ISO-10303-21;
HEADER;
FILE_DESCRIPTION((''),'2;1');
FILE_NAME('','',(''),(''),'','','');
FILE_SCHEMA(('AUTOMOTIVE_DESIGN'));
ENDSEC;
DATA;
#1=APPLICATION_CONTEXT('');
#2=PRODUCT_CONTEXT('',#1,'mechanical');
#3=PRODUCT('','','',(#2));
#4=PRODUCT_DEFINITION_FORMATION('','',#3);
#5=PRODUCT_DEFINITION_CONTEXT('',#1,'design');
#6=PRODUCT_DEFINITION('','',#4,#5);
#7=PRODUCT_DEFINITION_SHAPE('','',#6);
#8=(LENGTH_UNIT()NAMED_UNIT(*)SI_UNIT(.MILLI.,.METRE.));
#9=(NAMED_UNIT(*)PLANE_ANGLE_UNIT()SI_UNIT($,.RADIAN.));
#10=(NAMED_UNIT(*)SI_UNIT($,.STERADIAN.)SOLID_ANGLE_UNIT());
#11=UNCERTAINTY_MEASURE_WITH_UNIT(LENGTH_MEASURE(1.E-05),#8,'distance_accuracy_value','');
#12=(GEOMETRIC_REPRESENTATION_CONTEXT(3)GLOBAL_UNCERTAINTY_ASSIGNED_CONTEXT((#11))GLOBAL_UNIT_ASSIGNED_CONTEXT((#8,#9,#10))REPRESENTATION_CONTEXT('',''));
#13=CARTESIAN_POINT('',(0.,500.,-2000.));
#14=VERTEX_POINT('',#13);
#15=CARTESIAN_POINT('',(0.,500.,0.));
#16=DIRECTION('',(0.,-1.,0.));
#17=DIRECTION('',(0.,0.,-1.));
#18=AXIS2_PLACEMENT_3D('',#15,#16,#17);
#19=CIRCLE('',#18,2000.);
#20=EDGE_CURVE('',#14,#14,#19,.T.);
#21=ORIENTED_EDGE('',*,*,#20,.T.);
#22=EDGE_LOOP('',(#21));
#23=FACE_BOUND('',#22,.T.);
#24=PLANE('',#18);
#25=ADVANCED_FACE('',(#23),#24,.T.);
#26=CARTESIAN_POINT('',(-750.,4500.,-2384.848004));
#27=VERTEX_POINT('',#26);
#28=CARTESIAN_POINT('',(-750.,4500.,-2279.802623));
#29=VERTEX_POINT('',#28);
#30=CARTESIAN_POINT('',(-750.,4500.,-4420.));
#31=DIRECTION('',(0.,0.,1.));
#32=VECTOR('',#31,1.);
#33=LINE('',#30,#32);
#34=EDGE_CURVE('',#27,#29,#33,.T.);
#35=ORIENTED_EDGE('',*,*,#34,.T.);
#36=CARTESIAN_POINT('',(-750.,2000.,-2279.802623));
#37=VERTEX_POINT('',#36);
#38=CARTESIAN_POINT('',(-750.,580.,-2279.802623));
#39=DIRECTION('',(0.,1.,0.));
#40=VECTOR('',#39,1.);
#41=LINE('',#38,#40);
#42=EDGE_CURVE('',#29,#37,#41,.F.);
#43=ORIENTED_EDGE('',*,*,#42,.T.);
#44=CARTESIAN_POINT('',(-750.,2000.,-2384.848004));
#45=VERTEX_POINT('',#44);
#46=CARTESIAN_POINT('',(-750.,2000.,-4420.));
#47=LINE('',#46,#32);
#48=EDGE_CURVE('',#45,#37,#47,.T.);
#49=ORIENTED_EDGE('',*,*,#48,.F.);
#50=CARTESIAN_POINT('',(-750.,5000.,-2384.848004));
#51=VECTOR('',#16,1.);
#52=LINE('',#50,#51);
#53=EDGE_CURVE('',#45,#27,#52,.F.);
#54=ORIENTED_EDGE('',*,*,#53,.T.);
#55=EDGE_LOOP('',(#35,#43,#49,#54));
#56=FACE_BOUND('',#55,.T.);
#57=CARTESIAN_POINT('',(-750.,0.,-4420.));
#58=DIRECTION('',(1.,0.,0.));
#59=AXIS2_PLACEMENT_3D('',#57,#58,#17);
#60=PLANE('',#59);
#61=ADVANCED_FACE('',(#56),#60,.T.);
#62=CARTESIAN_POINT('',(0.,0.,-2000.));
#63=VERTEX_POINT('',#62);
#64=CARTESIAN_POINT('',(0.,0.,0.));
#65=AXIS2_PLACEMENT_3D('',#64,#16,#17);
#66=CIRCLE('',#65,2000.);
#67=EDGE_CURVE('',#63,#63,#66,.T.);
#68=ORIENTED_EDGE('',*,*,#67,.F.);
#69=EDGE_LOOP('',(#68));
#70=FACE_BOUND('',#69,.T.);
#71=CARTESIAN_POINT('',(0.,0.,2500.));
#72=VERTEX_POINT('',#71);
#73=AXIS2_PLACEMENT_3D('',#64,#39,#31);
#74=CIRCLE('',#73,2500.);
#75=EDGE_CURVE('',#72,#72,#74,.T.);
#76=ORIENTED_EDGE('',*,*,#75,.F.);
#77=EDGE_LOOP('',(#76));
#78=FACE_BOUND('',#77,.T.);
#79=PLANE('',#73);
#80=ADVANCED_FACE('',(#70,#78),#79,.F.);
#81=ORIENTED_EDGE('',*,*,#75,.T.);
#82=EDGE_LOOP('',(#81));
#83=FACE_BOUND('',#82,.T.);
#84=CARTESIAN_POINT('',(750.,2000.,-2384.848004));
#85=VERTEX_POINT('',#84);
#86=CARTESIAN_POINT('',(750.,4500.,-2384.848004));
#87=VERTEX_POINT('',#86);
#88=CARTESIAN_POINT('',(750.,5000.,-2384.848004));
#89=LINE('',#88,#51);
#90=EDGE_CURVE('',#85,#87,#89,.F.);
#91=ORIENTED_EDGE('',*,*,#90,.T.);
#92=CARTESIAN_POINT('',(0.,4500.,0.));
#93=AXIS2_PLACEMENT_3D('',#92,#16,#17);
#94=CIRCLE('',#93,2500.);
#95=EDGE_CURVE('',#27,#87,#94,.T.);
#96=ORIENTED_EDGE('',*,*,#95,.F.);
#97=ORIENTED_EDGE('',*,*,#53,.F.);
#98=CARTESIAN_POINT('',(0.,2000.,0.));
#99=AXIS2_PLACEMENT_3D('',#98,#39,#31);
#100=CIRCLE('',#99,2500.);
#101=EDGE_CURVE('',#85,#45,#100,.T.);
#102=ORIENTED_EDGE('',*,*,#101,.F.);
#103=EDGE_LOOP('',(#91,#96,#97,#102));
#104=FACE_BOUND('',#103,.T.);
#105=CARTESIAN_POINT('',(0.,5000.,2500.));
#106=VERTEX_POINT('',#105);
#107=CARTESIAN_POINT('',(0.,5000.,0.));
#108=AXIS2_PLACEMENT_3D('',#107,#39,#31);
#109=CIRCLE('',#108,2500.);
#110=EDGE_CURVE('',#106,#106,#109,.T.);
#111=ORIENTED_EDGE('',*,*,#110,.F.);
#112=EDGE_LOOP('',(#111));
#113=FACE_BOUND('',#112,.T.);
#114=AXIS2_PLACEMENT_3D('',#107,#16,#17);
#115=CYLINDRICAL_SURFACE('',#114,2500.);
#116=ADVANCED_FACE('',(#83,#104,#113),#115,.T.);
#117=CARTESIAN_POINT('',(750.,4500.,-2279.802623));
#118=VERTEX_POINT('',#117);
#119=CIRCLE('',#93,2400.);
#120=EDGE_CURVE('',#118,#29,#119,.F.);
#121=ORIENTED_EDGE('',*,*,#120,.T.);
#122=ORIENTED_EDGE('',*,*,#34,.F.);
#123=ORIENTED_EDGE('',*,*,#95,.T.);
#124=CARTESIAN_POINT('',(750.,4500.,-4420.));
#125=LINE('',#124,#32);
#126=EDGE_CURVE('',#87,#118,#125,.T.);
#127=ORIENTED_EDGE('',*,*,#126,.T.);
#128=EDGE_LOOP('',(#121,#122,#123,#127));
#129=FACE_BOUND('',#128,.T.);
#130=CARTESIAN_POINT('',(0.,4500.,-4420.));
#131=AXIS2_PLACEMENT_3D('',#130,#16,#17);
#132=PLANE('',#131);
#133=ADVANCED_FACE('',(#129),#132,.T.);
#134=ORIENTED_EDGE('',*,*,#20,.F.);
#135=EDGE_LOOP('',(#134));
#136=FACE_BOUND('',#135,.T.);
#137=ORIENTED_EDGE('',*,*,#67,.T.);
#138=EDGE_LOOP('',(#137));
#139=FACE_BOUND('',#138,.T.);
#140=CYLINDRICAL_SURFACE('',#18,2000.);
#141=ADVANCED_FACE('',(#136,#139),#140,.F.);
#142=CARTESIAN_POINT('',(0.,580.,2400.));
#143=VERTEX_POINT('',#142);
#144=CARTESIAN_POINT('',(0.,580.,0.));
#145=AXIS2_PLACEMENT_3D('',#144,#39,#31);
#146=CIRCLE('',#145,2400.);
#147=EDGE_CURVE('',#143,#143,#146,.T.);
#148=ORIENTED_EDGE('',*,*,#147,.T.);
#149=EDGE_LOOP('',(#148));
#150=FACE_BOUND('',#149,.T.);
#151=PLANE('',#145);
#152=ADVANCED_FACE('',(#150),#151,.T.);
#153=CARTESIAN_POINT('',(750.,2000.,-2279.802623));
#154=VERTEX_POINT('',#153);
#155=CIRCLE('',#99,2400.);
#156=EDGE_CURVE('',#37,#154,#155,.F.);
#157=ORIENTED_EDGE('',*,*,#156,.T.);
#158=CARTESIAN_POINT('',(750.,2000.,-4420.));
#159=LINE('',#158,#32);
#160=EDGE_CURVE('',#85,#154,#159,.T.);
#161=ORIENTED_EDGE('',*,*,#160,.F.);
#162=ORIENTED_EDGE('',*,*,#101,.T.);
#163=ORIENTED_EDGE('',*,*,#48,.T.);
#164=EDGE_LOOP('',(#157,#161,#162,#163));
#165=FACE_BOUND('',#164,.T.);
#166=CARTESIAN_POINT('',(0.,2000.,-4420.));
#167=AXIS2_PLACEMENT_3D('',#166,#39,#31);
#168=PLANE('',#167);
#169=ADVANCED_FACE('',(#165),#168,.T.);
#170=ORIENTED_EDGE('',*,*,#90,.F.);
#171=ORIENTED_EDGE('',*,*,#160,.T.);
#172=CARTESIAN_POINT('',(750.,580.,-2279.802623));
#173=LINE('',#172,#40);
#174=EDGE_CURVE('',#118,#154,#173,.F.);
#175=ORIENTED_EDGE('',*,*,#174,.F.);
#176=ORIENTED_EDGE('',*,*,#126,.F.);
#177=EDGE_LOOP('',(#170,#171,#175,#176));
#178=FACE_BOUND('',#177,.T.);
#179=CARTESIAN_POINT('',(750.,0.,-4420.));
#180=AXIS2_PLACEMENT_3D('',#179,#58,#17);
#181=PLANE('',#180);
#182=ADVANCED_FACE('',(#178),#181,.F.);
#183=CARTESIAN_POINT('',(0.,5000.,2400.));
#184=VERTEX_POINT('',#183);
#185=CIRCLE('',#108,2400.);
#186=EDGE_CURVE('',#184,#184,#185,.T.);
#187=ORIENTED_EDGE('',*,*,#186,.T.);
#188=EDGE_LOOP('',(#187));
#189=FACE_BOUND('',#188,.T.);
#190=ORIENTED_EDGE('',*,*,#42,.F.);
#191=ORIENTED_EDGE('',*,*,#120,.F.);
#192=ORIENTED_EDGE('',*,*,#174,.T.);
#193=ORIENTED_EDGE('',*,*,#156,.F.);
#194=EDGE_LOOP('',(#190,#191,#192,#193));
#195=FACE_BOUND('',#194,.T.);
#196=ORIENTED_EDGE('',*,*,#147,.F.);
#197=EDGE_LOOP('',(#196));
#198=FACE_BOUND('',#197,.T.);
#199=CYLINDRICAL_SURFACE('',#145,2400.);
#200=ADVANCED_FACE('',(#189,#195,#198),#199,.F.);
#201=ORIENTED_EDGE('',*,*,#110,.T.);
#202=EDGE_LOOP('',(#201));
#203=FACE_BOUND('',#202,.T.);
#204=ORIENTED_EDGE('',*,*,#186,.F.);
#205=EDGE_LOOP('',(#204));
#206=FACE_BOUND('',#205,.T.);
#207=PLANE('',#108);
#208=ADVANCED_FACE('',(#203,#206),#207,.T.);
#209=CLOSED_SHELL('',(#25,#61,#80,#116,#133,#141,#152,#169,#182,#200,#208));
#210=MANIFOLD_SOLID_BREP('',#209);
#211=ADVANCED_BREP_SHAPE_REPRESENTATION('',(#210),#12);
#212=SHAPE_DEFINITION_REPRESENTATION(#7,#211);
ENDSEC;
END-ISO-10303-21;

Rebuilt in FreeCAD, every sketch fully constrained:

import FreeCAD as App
import Part
import Sketcher
from FreeCAD import Vector
Q = App.Units.Quantity

doc = App.newDocument("Part")
body = doc.addObject("PartDesign::Body", "Body")

sketch1 = body.newObject("Sketcher::SketchObject", "Sketch")
sketch1.AttachmentSupport = (doc.getObject("XZ_Plane"), [""])
sketch1.MapMode = "FlatFace"
sketch1.addGeometry(Part.Circle(Vector(0, 0, 0), Vector(0, 0, 1), 2500), False)
sketch1.addConstraint([
    Sketcher.Constraint("Coincident", 0, 3, -1, 1),
    Sketcher.Constraint("Diameter", 0, Q("5000 mm")),
])
pad1 = body.newObject("PartDesign::Pad", "Pad")
pad1.Profile = sketch1
pad1.Length = 5000
pad1.Reversed = True

sketch2 = body.newObject("Sketcher::SketchObject", "Sketch001")
sketch2.AttachmentSupport = (doc.getObject("XZ_Plane"), [""])
sketch2.MapMode = "FlatFace"
sketch2.addGeometry(Part.Circle(Vector(0, 0, 0), Vector(0, 0, 1), 2000), False)
sketch2.addConstraint([
    Sketcher.Constraint("Coincident", 0, 3, -1, 1),
    Sketcher.Constraint("Diameter", 0, Q("4000 mm")),
])
pocket1 = body.newObject("PartDesign::Pocket", "Pocket")
pocket1.Profile = sketch2
pocket1.Length = 500

sketch3 = body.newObject("Sketcher::SketchObject", "Sketch002")
sketch3.AttachmentSupport = (doc.getObject("XZ_Plane"), [""])
sketch3.MapMode = "FlatFace"
sketch3.AttachmentOffset = App.Placement(Vector(0, 0, -5000), App.Rotation())
sketch3.addGeometry(Part.Circle(Vector(0, 0, 0), Vector(0, 0, 1), 2400), False)
sketch3.addConstraint([
    Sketcher.Constraint("Coincident", 0, 3, -1, 1),
    Sketcher.Constraint("Diameter", 0, Q("4800 mm")),
])
pocket2 = body.newObject("PartDesign::Pocket", "Pocket001")
pocket2.Profile = sketch3
pocket2.Length = 4420
pocket2.Reversed = True

sketch4 = body.newObject("Sketcher::SketchObject", "Sketch003")
sketch4.AttachmentSupport = (doc.getObject("XY_Plane"), [""])
sketch4.MapMode = "FlatFace"
sketch4.addGeometry([
    Part.LineSegment(Vector(-750, 4500, 0), Vector(-750, 2000, 0)),
    Part.LineSegment(Vector(-750, 2000, 0), Vector(750, 2000, 0)),
    Part.LineSegment(Vector(750, 2000, 0), Vector(750, 4500, 0)),
    Part.LineSegment(Vector(750, 4500, 0), Vector(-750, 4500, 0)),
], False)
sketch4.addConstraint([
    Sketcher.Constraint("Coincident", 0, 2, 1, 1),
    Sketcher.Constraint("Coincident", 1, 2, 2, 1),
    Sketcher.Constraint("Coincident", 2, 2, 3, 1),
    Sketcher.Constraint("Coincident", 3, 2, 0, 1),
    Sketcher.Constraint("Vertical", 0),
    Sketcher.Constraint("Horizontal", 1),
    Sketcher.Constraint("Vertical", 2),
    Sketcher.Constraint("Horizontal", 3),
    Sketcher.Constraint("DistanceX", 1, 1, 1, 2, Q("1500 mm")),
    Sketcher.Constraint("DistanceY", 0, 2, 0, 1, Q("2500 mm")),
    Sketcher.Constraint("DistanceX", 0, 2, -1, 1, Q("750 mm")),
    Sketcher.Constraint("DistanceY", -1, 1, 0, 2, Q("2000 mm")),
])
pocket3 = body.newObject("PartDesign::Pocket", "Pocket002")
pocket3.Profile = sketch4
pocket3.Length = 4420

doc.recompute()
